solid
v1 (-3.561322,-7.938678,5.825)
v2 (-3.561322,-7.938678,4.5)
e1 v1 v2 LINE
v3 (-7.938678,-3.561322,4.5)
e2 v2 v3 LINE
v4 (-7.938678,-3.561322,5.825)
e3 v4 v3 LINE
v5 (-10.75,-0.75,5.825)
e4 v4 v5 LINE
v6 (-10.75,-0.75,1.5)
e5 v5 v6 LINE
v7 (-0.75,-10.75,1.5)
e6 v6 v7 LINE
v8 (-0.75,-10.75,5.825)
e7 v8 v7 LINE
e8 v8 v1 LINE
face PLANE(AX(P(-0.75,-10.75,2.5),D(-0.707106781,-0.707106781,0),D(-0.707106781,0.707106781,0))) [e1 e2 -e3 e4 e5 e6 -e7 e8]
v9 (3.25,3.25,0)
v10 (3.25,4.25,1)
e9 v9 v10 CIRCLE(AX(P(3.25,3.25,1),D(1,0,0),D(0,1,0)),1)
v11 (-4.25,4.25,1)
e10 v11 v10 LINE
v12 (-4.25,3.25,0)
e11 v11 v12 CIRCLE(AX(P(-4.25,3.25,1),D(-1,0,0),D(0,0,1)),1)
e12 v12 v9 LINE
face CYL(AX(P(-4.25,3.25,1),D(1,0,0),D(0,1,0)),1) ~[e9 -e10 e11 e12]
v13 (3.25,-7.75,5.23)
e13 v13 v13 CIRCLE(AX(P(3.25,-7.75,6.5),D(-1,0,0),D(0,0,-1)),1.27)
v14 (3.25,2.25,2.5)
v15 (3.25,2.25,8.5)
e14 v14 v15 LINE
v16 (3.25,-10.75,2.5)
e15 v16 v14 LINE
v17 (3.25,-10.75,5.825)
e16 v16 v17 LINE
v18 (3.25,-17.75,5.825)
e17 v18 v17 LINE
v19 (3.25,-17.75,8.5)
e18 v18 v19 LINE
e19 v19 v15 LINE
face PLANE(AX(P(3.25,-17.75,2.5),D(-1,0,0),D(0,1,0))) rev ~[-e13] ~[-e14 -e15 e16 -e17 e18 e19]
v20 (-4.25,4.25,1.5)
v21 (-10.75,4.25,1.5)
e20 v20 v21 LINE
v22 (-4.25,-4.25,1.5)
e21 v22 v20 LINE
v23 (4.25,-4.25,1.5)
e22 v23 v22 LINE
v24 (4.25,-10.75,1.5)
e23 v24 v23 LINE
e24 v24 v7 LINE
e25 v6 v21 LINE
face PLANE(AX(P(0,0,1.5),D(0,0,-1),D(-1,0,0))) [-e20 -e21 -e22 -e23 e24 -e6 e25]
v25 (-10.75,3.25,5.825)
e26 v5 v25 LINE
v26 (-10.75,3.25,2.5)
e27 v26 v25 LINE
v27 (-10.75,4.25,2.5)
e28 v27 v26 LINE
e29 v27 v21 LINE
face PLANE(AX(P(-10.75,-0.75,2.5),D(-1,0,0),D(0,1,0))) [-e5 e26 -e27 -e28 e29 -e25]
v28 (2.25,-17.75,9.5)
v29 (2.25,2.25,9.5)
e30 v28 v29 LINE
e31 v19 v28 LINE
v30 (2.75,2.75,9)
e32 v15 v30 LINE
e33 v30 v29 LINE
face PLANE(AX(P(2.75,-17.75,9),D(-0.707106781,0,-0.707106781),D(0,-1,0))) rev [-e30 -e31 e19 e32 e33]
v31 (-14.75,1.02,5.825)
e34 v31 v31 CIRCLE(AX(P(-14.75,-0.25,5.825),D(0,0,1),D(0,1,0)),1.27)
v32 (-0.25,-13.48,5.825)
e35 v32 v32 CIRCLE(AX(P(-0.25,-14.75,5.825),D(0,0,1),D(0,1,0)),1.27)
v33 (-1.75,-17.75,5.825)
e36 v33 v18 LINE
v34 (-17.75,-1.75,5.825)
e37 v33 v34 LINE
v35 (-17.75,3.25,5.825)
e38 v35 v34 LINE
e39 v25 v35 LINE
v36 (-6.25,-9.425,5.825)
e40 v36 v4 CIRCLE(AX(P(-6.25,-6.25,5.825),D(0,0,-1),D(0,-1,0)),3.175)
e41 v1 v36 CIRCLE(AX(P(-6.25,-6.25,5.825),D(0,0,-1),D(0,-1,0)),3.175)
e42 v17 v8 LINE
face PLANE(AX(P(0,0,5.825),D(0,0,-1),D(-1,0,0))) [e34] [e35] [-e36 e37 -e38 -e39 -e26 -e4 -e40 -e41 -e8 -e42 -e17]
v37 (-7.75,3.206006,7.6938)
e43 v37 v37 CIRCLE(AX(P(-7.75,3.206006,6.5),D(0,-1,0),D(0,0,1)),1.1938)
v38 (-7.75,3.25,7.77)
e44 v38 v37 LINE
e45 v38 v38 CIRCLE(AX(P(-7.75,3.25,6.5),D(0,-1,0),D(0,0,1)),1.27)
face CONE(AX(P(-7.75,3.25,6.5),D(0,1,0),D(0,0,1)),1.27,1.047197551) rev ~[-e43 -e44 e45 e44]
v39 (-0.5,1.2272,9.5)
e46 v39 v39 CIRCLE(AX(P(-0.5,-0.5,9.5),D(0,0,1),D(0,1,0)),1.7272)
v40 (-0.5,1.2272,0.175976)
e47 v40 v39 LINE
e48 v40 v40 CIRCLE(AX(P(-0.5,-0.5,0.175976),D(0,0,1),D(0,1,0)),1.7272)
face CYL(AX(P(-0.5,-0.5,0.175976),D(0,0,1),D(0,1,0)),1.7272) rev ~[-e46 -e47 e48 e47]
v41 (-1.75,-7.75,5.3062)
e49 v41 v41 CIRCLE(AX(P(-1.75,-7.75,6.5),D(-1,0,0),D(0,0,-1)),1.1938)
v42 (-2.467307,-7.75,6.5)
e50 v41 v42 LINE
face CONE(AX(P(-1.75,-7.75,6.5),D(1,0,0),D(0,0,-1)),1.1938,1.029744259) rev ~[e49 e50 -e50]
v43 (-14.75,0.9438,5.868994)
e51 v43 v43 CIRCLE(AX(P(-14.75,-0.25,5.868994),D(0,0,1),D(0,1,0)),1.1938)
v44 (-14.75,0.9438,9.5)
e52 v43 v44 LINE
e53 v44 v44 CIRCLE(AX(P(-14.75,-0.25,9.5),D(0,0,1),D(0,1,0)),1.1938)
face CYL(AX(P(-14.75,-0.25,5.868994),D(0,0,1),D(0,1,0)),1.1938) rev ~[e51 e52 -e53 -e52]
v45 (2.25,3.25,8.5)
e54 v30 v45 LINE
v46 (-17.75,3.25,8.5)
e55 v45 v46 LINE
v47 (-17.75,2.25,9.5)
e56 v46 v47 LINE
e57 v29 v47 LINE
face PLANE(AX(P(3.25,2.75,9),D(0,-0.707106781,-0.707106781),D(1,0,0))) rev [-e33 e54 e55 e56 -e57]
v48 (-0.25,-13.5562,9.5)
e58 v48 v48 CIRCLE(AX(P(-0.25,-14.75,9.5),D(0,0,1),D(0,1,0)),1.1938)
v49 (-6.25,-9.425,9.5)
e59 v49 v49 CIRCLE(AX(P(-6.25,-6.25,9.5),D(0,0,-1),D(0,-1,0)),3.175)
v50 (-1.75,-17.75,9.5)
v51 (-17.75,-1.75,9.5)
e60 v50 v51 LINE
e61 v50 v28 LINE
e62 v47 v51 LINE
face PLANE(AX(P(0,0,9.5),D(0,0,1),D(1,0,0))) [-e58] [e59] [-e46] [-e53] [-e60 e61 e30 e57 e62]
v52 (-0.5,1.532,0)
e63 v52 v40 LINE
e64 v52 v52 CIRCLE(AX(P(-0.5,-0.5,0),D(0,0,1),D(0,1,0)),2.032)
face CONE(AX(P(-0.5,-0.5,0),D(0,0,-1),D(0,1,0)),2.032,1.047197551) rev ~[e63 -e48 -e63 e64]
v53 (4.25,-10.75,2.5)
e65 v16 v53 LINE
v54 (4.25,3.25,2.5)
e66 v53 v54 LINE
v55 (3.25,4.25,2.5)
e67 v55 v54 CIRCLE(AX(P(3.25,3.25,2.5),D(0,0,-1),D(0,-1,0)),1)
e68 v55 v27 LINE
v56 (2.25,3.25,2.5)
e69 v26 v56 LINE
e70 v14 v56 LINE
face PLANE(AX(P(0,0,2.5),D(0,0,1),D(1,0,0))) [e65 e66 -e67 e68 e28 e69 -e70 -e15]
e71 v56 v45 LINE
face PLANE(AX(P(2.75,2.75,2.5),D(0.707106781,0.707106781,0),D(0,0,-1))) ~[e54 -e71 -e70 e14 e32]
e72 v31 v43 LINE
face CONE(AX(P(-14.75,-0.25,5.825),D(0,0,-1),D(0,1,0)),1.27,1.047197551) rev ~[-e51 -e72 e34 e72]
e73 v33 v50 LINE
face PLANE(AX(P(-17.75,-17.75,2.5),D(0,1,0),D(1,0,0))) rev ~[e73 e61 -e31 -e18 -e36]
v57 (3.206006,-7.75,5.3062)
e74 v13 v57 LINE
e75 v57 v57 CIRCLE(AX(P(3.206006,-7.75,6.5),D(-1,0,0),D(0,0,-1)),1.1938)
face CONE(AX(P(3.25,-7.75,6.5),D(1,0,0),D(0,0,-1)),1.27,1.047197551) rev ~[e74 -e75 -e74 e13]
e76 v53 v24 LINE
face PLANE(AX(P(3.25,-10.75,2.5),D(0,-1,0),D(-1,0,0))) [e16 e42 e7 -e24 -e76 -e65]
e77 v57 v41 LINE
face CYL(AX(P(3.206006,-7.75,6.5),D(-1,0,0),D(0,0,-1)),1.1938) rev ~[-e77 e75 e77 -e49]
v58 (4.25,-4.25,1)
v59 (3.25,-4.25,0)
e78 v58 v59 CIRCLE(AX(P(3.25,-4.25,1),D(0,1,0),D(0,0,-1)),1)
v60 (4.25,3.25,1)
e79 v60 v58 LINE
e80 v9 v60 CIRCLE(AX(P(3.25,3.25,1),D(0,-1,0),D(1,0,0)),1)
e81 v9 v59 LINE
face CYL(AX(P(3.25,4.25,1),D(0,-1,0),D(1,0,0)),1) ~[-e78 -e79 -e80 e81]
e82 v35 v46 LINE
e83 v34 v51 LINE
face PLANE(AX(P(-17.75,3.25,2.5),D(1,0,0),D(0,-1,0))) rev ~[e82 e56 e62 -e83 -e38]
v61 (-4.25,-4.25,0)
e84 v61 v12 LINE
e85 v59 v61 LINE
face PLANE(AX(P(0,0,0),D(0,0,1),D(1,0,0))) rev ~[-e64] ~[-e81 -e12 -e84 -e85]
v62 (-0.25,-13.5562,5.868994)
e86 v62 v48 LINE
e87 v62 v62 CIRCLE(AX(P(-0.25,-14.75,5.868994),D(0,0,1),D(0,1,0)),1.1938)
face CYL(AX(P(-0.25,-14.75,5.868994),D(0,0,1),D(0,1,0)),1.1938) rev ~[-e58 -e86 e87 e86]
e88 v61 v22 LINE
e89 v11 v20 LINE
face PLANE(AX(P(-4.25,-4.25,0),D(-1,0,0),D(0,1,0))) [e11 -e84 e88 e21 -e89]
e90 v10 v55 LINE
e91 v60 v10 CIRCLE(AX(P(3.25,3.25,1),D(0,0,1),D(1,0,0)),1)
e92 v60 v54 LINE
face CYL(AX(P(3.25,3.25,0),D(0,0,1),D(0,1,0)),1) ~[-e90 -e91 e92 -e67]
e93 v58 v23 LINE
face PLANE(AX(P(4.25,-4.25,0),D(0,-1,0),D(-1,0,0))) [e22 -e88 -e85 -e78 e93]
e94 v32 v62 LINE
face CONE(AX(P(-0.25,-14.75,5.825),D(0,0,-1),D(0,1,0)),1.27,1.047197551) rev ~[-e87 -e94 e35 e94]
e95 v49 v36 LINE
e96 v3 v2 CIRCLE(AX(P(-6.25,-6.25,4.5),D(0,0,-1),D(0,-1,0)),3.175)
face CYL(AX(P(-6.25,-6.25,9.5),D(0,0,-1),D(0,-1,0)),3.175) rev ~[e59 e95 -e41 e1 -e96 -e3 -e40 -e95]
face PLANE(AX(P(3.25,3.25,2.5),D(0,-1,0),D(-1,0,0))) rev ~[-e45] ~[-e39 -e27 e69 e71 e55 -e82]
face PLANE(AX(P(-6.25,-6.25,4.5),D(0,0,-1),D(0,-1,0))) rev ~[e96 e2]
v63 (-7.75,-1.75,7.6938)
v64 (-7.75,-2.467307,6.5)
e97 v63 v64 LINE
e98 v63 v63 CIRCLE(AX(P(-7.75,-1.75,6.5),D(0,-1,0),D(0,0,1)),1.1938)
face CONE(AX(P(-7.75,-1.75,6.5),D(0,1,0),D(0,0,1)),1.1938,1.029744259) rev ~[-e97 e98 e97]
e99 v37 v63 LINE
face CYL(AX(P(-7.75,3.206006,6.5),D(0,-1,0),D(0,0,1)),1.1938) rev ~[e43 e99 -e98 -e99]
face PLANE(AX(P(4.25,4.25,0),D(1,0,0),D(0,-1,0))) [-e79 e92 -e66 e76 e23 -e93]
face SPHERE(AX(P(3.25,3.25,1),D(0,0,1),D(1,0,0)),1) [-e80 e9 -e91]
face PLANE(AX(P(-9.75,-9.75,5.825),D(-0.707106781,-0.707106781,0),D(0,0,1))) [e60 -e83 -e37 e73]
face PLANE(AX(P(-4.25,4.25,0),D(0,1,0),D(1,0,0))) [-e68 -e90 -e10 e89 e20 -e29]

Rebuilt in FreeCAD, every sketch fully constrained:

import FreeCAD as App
import Part
import Sketcher
from FreeCAD import Vector
Q = App.Units.Quantity


def edges_at(feature, points):
    """Names of the edges that pass closest to the given points."""
    edges = feature.Shape.Edges
    near = lambda p: min(range(len(edges)), key=lambda i: edges[i].distToShape(Part.Vertex(*p))[0])
    return sorted({f"Edge{near(p) + 1}" for p in points})

doc = App.newDocument("Part")
body = doc.addObject("PartDesign::Body", "Body")

sketch1 = body.newObject("Sketcher::SketchObject", "Sketch")
sketch1.AttachmentSupport = (doc.getObject("XY_Plane"), [""])
sketch1.MapMode = "FlatFace"
sketch1.addGeometry(Part.LineSegment(Vector(4, 4, 0), Vector(-4, 4, 0)), False)
sketch1.addGeometry(Part.LineSegment(Vector(-4, 4, 0), Vector(-4, -4, 0)), False)
sketch1.addGeometry(Part.LineSegment(Vector(-4, -4, 0), Vector(4, -4, 0)), False)
sketch1.addGeometry(Part.LineSegment(Vector(4, -4, 0), Vector(4, 4, 0)), False)
sketch1.addConstraint(Sketcher.Constraint("Coincident", 0, 2, 1, 1))
sketch1.addConstraint(Sketcher.Constraint("Coincident", 1, 2, 2, 1))
sketch1.addConstraint(Sketcher.Constraint("Coincident", 2, 2, 3, 1))
sketch1.addConstraint(Sketcher.Constraint("Coincident", 3, 2, 0, 1))
sketch1.addConstraint(Sketcher.Constraint("Horizontal", 0))
sketch1.addConstraint(Sketcher.Constraint("Vertical", 1))
sketch1.addConstraint(Sketcher.Constraint("Horizontal", 2))
sketch1.addConstraint(Sketcher.Constraint("Vertical", 3))
sketch1.addConstraint(Sketcher.Constraint("Symmetric", 0, 2, 2, 2, -1, 1))
sketch1.addConstraint(Sketcher.Constraint("Equal", 2, 1))
sketch1.addConstraint(Sketcher.Constraint("DistanceX", 0, 2, 0, 1, Q("8.5 mm")))
pad1 = body.newObject("PartDesign::Pad", "Pad")
pad1.Profile = sketch1
pad1.Length = 2.5
doc.recompute()

fillet = body.newObject("PartDesign::Fillet", "Fillet")
fillet.Base = (pad1, edges_at(pad1, [(4.25, 4.25, 1.25), (4.25, 0, 0), (0, 4.25, 0)]))
fillet.Radius = 1

sketch2 = body.newObject("Sketcher::SketchObject", "Sketch001")
sketch2.AttachmentSupport = (doc.getObject("XY_Plane"), [""])
sketch2.MapMode = "FlatFace"
sketch2.AttachmentOffset = App.Placement(Vector(0, 0, 2.5), App.Rotation())
sketch2.addGeometry(Part.LineSegment(Vector(3, -18, 0), Vector(3, 3, 0)), False)
sketch2.addGeometry(Part.LineSegment(Vector(3, 3, 0), Vector(-18, 3, 0)), False)
sketch2.addGeometry(Part.LineSegment(Vector(-18, 3, 0), Vector(-18, -18, 0)), False)
sketch2.addGeometry(Part.LineSegment(Vector(-18, -18, 0), Vector(3, -18, 0)), False)
sketch2.addConstraint(Sketcher.Constraint("Coincident", 0, 2, 1, 1))
sketch2.addConstraint(Sketcher.Constraint("Coincident", 1, 2, 2, 1))
sketch2.addConstraint(Sketcher.Constraint("Coincident", 2, 2, 3, 1))
sketch2.addConstraint(Sketcher.Constraint("Coincident", 3, 2, 0, 1))
sketch2.addConstraint(Sketcher.Constraint("Vertical", 0))
sketch2.addConstraint(Sketcher.Constraint("Horizontal", 1))
sketch2.addConstraint(Sketcher.Constraint("Vertical", 2))
sketch2.addConstraint(Sketcher.Constraint("Horizontal", 3))
sketch2.addConstraint(Sketcher.Constraint("Equal", 3, 0))
sketch2.addConstraint(Sketcher.Constraint("DistanceX", 1, 2, 1, 1, Q("21 mm")))
sketch2.addConstraint(Sketcher.Constraint("DistanceX", -1, 1, 0, 2, Q("3.25 mm")))
sketch2.addConstraint(Sketcher.Constraint("DistanceY", -1, 1, 0, 2, Q("3.25 mm")))
pad2 = body.newObject("PartDesign::Pad", "Pad001")
pad2.Profile = sketch2
pad2.Length = 7

sketch3 = body.newObject("Sketcher::SketchObject", "Sketch002")
sketch3.AttachmentSupport = (doc.getObject("YZ_Plane"), [""])
sketch3.MapMode = "FlatFace"
sketch3.AttachmentOffset = App.Placement(Vector(0, 0, 3.25), App.Rotation())
sketch3.addGeometry(Part.Circle(Vector(-7.8, 6.5, 0), Vector(0, 0, 1), 1.2), False)
sketch3.addConstraint(Sketcher.Constraint("Diameter", 0, Q("2.3876 mm")))
sketch3.addConstraint(Sketcher.Constraint("DistanceY", -1, 1, 0, 3, Q("6.5 mm")))
sketch3.addConstraint(Sketcher.Constraint("DistanceX", 0, 3, -1, 1, Q("7.75 mm")))
doc.recompute()
hole = body.newObject("PartDesign::Hole", "Hole")
hole.Profile = sketch3
hole.ThreadType = "None"
hole.Diameter = 2.3876
hole.DepthType = "Dimension"
hole.Depth = 5
hole.DrillPoint = "Angled"
hole.DrillPointAngle = 118
hole.HoleCutType = "Countersink"
hole.HoleCutDiameter = 2.54
hole.HoleCutCountersinkAngle = 120

sketch4 = body.newObject("Sketcher::SketchObject", "Sketch003")
sketch4.AttachmentSupport = (doc.getObject("XZ_Plane"), [""])
sketch4.MapMode = "FlatFace"
sketch4.AttachmentOffset = App.Placement(Vector(0, 0, -3.25), App.Rotation())
sketch4.addGeometry(Part.Circle(Vector(-7.8, 6.5, 0), Vector(0, 0, 1), 1.2), False)
sketch4.addConstraint(Sketcher.Constraint("Diameter", 0, Q("2.3876 mm")))
sketch4.addConstraint(Sketcher.Constraint("DistanceY", -1, 1, 0, 3, Q("6.5 mm")))
sketch4.addConstraint(Sketcher.Constraint("DistanceX", 0, 3, -1, 1, Q("7.75 mm")))
doc.recompute()
hole2 = body.newObject("PartDesign::Hole", "Hole001")
hole2.Profile = sketch4
hole2.ThreadType = "None"
hole2.Diameter = 2.3876
hole2.DepthType = "Dimension"
hole2.Depth = 5
hole2.DrillPoint = "Angled"
hole2.DrillPointAngle = 118
hole2.HoleCutType = "Countersink"
hole2.HoleCutDiameter = 2.54
hole2.HoleCutCountersinkAngle = 120
hole2.Reversed = True

sketch5 = body.newObject("Sketcher::SketchObject", "Sketch004")
sketch5.AttachmentSupport = (doc.getObject("XY_Plane"), [""])
sketch5.MapMode = "FlatFace"
sketch5.AttachmentOffset = App.Placement(Vector(0, 0, 9.5), App.Rotation())
sketch5.addGeometry(Part.Circle(Vector(-6.2, -6.2, 0), Vector(0, 0, 1), 3.2), False)
sketch5.addConstraint(Sketcher.Constraint("Diameter", 0, Q("6.35 mm")))
sketch5.addConstraint(Sketcher.Constraint("DistanceX", 0, 3, -1, 1, Q("6.25 mm")))
sketch5.addConstraint(Sketcher.Constraint("DistanceY", 0, 3, -1, 1, Q("6.25 mm")))
doc.recompute()
hole3 = body.newObject("PartDesign::Hole", "Hole002")
hole3.Profile = sketch5
hole3.ThreadType = "None"
hole3.Diameter = 6.35
hole3.DepthType = "Dimension"
hole3.Depth = 5
hole3.DrillPoint = "Flat"

sketch6 = body.newObject("Sketcher::SketchObject", "Sketch005")
sketch6.AttachmentSupport = (doc.getObject("XY_Plane"), [""])
sketch6.MapMode = "FlatFace"
sketch6.AttachmentOffset = App.Placement(Vector(0, 0, 2.5), App.Rotation())
sketch6.addGeometry(Part.LineSegment(Vector(3.2, -17.8, 0), Vector(-17.8, -17.8, 0)), False)
sketch6.addGeometry(Part.LineSegment(Vector(-17.8, -17.8, 0), Vector(-17.8, 3.2, 0)), False)
sketch6.addGeometry(Part.LineSegment(Vector(-17.8, 3.2, 0), Vector(-10.8, 3.2, 0)), False)
sketch6.addGeometry(Part.LineSegment(Vector(-10.8, 3.2, 0), Vector(-10.8, -0.8, 0)), False)
sketch6.addGeometry(Part.LineSegment(Vector(-10.8, -0.8, 0), Vector(-0.8, -10.8, 0)), False)
sketch6.addGeometry(Part.LineSegment(Vector(-0.8, -10.8, 0), Vector(3.2, -10.8, 0)), False)
sketch6.addGeometry(Part.LineSegment(Vector(3.2, -10.8, 0), Vector(3.2, -17.8, 0)), False)
sketch6.addConstraint(Sketcher.Constraint("Coincident", 0, 2, 1, 1))
sketch6.addConstraint(Sketcher.Constraint("Coincident", 1, 2, 2, 1))
sketch6.addConstraint(Sketcher.Constraint("Coincident", 2, 2, 3, 1))
sketch6.addConstraint(Sketcher.Constraint("Coincident", 3, 2, 4, 1))
sketch6.addConstraint(Sketcher.Constraint("Coincident", 4, 2, 5, 1))
sketch6.addConstraint(Sketcher.Constraint("Coincident", 5, 2, 6, 1))
sketch6.addConstraint(Sketcher.Constraint("Coincident", 6, 2, 0, 1))
sketch6.addConstraint(Sketcher.Constraint("Horizontal", 0))
sketch6.addConstraint(Sketcher.Constraint("Vertical", 1))
sketch6.addConstraint(Sketcher.Constraint("Horizontal", 2))
sketch6.addConstraint(Sketcher.Constraint("Vertical", 3))
sketch6.addConstraint(Sketcher.Constraint("Horizontal", 5))
sketch6.addConstraint(Sketcher.Constraint("Vertical", 6))
sketch6.addConstraint(Sketcher.Constraint("Equal", 0, 1))
sketch6.addConstraint(Sketcher.Constraint("Equal", 5, 3))
sketch6.addConstraint(Sketcher.Constraint("Equal", 2, 6))
sketch6.addConstraint(Sketcher.Constraint("DistanceX", 5, 1, 5, 2, Q("4 mm")))
sketch6.addConstraint(Sketcher.Constraint("DistanceY", 4, 2, 2, 2, Q("14 mm")))
sketch6.addConstraint(Sketcher.Constraint("DistanceX", 0, 2, 0, 1, Q("21 mm")))
sketch6.addConstraint(Sketcher.Constraint("DistanceX", 0, 2, -1, 1, Q("17.75 mm")))
sketch6.addConstraint(Sketcher.Constraint("DistanceY", 0, 2, -1, 1, Q("17.75 mm")))
pocket1 = body.newObject("PartDesign::Pocket", "Pocket")
pocket1.Profile = sketch6
pocket1.Length = 3.325
pocket1.Reversed = True

sketch7 = body.newObject("Sketcher::SketchObject", "Sketch006")
sketch7.AttachmentSupport = (doc.getObject("XY_Plane"), [""])
sketch7.MapMode = "FlatFace"
sketch7.AttachmentOffset = App.Placement(Vector(0, 0, 5.825), App.Rotation())
sketch7.addGeometry(Part.Circle(Vector(-0.2, -14.8, 0), Vector(0, 0, 1), 1.2), False)
sketch7.addConstraint(Sketcher.Constraint("Diameter", 0, Q("2.3876 mm")))
sketch7.addConstraint(Sketcher.Constraint("DistanceX", 0, 3, -1, 1, Q("0.25 mm")))
sketch7.addConstraint(Sketcher.Constraint("DistanceY", 0, 3, -1, 1, Q("14.75 mm")))
doc.recompute()
hole4 = body.newObject("PartDesign::Hole", "Hole003")
hole4.Profile = sketch7
hole4.ThreadType = "None"
hole4.Diameter = 2.3876
hole4.DepthType = "ThroughAll"
hole4.HoleCutType = "Countersink"
hole4.HoleCutDiameter = 2.54
hole4.HoleCutCountersinkAngle = 120
hole4.Reversed = True

sketch8 = body.newObject("Sketcher::SketchObject", "Sketch007")
sketch8.AttachmentSupport = (doc.getObject("XY_Plane"), [""])
sketch8.MapMode = "FlatFace"
sketch8.AttachmentOffset = App.Placement(Vector(0, 0, 5.825), App.Rotation())
sketch8.addGeometry(Part.Circle(Vector(-14.8, -0.2, 0), Vector(0, 0, 1), 1.2), False)
sketch8.addConstraint(Sketcher.Constraint("Diameter", 0, Q("2.3876 mm")))
sketch8.addConstraint(Sketcher.Constraint("DistanceX", 0, 3, -1, 1, Q("14.75 mm")))
sketch8.addConstraint(Sketcher.Constraint("DistanceY", 0, 3, -1, 1, Q("0.25 mm")))
doc.recompute()
hole5 = body.newObject("PartDesign::Hole", "Hole004")
hole5.Profile = sketch8
hole5.ThreadType = "None"
hole5.Diameter = 2.3876
hole5.DepthType = "ThroughAll"
hole5.HoleCutType = "Countersink"
hole5.HoleCutDiameter = 2.54
hole5.HoleCutCountersinkAngle = 120
hole5.Reversed = True
doc.recompute()

chamfer = body.newObject("PartDesign::Chamfer", "Chamfer")
chamfer.Base = (hole5, edges_at(hole5, [(-17.75, -17.75, 7.662)]))
chamfer.Size = 16
doc.recompute()

chamfer2 = body.newObject("PartDesign::Chamfer", "Chamfer001")
chamfer2.Base = (chamfer, edges_at(chamfer, [(-7.25, 3.25, 9.5), (3.25, -7.25, 9.5)]))
chamfer2.Size = 1
doc.recompute()

chamfer3 = body.newObject("PartDesign::Chamfer", "Chamfer002")
chamfer3.Base = (chamfer2, edges_at(chamfer2, [(3.25, 3.25, 5.5)]))
chamfer3.Size = 1

sketch9 = body.newObject("Sketcher::SketchObject", "Sketch008")
sketch9.AttachmentSupport = (doc.getObject("XY_Plane"), [""])
sketch9.MapMode = "FlatFace"
sketch9.addGeometry(Part.Circle(Vector(-0.5, -0.5, 0), Vector(0, 0, 1), 1.7), False)
sketch9.addConstraint(Sketcher.Constraint("Diameter", 0, Q("3.4544 mm")))
sketch9.addConstraint(Sketcher.Constraint("DistanceX", 0, 3, -1, 1, Q("0.5 mm")))
sketch9.addConstraint(Sketcher.Constraint("DistanceY", 0, 3, -1, 1, Q("0.5 mm")))
doc.recompute()
hole6 = body.newObject("PartDesign::Hole", "Hole005")
hole6.Profile = sketch9
hole6.ThreadType = "None"
hole6.Diameter = 3.4544
hole6.DepthType = "ThroughAll"
hole6.HoleCutType = "Countersink"
hole6.HoleCutDiameter = 4.064
hole6.HoleCutCountersinkAngle = 120
hole6.Reversed = True

sketch10 = body.newObject("Sketcher::SketchObject", "Sketch009")
sketch10.AttachmentSupport = (doc.getObject("XY_Plane"), [""])
sketch10.MapMode = "FlatFace"
sketch10.AttachmentOffset = App.Placement(Vector(0, 0, 2.5), App.Rotation())
sketch10.addGeometry(Part.LineSegment(Vector(-4, -4, 0), Vector(4, -4, 0)), False)
sketch10.addGeometry(Part.LineSegment(Vector(4, -4, 0), Vector(4, -11, 0)), False)
sketch10.addGeometry(Part.LineSegment(Vector(4, -11, 0), Vector(-1, -11, 0)), False)
sketch10.addGeometry(Part.LineSegment(Vector(-1, -11, 0), Vector(-11, -1, 0)), False)
sketch10.addGeometry(Part.LineSegment(Vector(-11, -1, 0), Vector(-11, 4, 0)), False)
sketch10.addGeometry(Part.LineSegment(Vector(-11, 4, 0), Vector(-4, 4, 0)), False)
sketch10.addGeometry(Part.LineSegment(Vector(-4, 4, 0), Vector(-4, -4, 0)), False)
sketch10.addConstraint(Sketcher.Constraint("Coincident", 0, 2, 1, 1))
sketch10.addConstraint(Sketcher.Constraint("Coincident", 1, 2, 2, 1))
sketch10.addConstraint(Sketcher.Constraint("Coincident", 2, 2, 3, 1))
sketch10.addConstraint(Sketcher.Constraint("Coincident", 3, 2, 4, 1))
sketch10.addConstraint(Sketcher.Constraint("Coincident", 4, 2, 5, 1))
sketch10.addConstraint(Sketcher.Constraint("Coincident", 5, 2, 6, 1))
sketch10.addConstraint(Sketcher.Constraint("Coincident", 6, 2, 0, 1))
sketch10.addConstraint(Sketcher.Constraint("Horizontal", 0))
sketch10.addConstraint(Sketcher.Constraint("Vertical", 1))
sketch10.addConstraint(Sketcher.Constraint("Horizontal", 2))
sketch10.addConstraint(Sketcher.Constraint("Vertical", 4))
sketch10.addConstraint(Sketcher.Constraint("Horizontal", 5))
sketch10.addConstraint(Sketcher.Constraint("Vertical", 6))
sketch10.addConstraint(Sketcher.Constraint("Symmetric", 0, 2, 5, 2, -1, 1))
sketch10.addConstraint(Sketcher.Constraint("Equal", 5, 1))
sketch10.addConstraint(Sketcher.Constraint("Equal", 2, 4))
sketch10.addConstraint(Sketcher.Constraint("Equal", 0, 6))
sketch10.addConstraint(Sketcher.Constraint("DistanceX", 2, 2, 2, 1, Q("5 mm")))
sketch10.addConstraint(Sketcher.Constraint("DistanceX", 0, 1, 0, 2, Q("8.5 mm")))
sketch10.addConstraint(Sketcher.Constraint("DistanceX", 5, 1, 5, 2, Q("6.5 mm")))
pad3 = body.newObject("PartDesign::Pad", "Pad002")
pad3.Profile = sketch10
pad3.Length = 1
pad3.Reversed = True

doc.recompute()
